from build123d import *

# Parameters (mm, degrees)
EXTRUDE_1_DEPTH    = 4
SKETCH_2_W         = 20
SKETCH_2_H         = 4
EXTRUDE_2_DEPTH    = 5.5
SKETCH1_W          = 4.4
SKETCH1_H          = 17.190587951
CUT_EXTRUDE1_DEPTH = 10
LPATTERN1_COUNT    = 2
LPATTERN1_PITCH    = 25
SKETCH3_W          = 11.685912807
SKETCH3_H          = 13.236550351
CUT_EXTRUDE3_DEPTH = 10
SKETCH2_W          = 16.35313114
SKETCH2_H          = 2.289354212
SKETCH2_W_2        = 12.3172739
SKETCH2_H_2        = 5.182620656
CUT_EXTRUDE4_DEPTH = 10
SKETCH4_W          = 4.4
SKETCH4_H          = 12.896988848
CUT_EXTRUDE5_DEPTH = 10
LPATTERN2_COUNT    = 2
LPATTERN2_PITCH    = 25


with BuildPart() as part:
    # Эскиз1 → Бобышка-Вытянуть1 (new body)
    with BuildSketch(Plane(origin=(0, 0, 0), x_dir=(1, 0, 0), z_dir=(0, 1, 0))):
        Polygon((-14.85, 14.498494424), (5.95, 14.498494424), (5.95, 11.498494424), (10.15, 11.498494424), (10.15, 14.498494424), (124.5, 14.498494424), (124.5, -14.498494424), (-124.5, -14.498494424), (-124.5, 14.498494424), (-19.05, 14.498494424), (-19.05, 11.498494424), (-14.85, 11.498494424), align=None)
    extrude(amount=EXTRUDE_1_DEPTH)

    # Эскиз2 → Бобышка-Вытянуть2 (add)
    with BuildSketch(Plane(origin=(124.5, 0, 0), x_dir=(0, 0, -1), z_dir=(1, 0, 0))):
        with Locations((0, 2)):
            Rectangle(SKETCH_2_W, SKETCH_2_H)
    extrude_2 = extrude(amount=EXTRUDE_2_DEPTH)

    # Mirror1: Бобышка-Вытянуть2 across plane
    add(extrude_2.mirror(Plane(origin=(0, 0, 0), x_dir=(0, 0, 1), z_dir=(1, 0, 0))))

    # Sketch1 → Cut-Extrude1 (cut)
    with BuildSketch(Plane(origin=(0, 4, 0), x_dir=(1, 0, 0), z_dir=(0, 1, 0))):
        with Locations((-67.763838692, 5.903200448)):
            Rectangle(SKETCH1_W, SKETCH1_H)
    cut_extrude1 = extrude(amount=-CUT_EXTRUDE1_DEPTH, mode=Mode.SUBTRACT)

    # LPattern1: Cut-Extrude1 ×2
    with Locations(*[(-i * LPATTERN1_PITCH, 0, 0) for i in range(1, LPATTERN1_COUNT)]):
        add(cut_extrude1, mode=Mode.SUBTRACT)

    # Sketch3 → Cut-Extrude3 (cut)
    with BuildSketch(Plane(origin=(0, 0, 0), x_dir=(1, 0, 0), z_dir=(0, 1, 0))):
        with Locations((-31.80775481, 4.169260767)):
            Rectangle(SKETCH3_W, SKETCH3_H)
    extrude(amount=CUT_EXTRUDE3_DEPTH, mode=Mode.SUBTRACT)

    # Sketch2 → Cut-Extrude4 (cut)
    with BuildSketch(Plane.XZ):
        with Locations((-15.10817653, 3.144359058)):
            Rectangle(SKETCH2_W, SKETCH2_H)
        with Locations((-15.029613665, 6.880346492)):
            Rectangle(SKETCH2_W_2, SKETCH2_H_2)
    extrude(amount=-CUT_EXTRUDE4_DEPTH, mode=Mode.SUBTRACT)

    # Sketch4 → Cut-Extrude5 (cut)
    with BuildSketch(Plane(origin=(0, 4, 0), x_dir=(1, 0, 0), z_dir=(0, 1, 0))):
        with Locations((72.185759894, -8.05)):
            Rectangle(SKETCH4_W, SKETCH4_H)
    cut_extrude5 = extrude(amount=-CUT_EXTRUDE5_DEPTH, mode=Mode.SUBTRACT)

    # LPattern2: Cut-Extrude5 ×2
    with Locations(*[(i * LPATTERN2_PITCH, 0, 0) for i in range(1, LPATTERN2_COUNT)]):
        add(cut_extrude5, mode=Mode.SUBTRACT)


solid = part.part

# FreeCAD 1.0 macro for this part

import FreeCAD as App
import Part
import Sketcher
from FreeCAD import Vector

doc = App.newDocument("Part")
body = doc.addObject("PartDesign::Body", "Body")

# Sketch on XZ plane
sketch1 = doc.addObject("Sketcher::SketchObject", "Sketch")
body.addObject(sketch1)
sketch1.AttachmentSupport = (doc.XZ_Plane, [""])
sketch1.MapMode = "FlatFace"
sketch1.addGeometry(Part.LineSegment(Vector(5.95, -14.498494, 0), Vector(-14.85, -14.498494, 0)), False)
sketch1.addGeometry(Part.LineSegment(Vector(-14.85, -14.498494, 0), Vector(-14.85, -11.498494, 0)), False)
sketch1.addGeometry(Part.LineSegment(Vector(-14.85, -11.498494, 0), Vector(-19.05, -11.498494, 0)), False)
sketch1.addGeometry(Part.LineSegment(Vector(-19.05, -11.498494, 0), Vector(-19.05, -14.498494, 0)), False)
sketch1.addGeometry(Part.LineSegment(Vector(-19.05, -14.498494, 0), Vector(-124.5, -14.498494, 0)), False)
sketch1.addGeometry(Part.LineSegment(Vector(-124.5, -14.498494, 0), Vector(-124.5, 14.498494, 0)), False)
sketch1.addGeometry(Part.LineSegment(Vector(-124.5, 14.498494, 0), Vector(124.5, 14.498494, 0)), False)
sketch1.addGeometry(Part.LineSegment(Vector(124.5, 14.498494, 0), Vector(124.5, -14.498494, 0)), False)
sketch1.addGeometry(Part.LineSegment(Vector(124.5, -14.498494, 0), Vector(10.15, -14.498494, 0)), False)
sketch1.addGeometry(Part.LineSegment(Vector(10.15, -14.498494, 0), Vector(10.15, -11.498494, 0)), False)
sketch1.addGeometry(Part.LineSegment(Vector(10.15, -11.498494, 0), Vector(5.95, -11.498494, 0)), False)
sketch1.addGeometry(Part.LineSegment(Vector(5.95, -11.498494, 0), Vector(5.95, -14.498494, 0)), False)
sketch1.addConstraint(Sketcher.Constraint("Coincident", 0, 2, 1, 1))
sketch1.addConstraint(Sketcher.Constraint("Coincident", 1, 2, 2, 1))
sketch1.addConstraint(Sketcher.Constraint("Coincident", 2, 2, 3, 1))
sketch1.addConstraint(Sketcher.Constraint("Coincident", 3, 2, 4, 1))
sketch1.addConstraint(Sketcher.Constraint("Coincident", 4, 2, 5, 1))
sketch1.addConstraint(Sketcher.Constraint("Coincident", 5, 2, 6, 1))
sketch1.addConstraint(Sketcher.Constraint("Coincident", 6, 2, 7, 1))
sketch1.addConstraint(Sketcher.Constraint("Coincident", 7, 2, 8, 1))
sketch1.addConstraint(Sketcher.Constraint("Coincident", 8, 2, 9, 1))
sketch1.addConstraint(Sketcher.Constraint("Coincident", 9, 2, 10, 1))
sketch1.addConstraint(Sketcher.Constraint("Coincident", 10, 2, 11, 1))
sketch1.addConstraint(Sketcher.Constraint("Coincident", 11, 2, 0, 1))
sketch1.addConstraint(Sketcher.Constraint("Horizontal", 0))
sketch1.addConstraint(Sketcher.Constraint("Vertical", 1))
sketch1.addConstraint(Sketcher.Constraint("Horizontal", 2))
sketch1.addConstraint(Sketcher.Constraint("Vertical", 3))
sketch1.addConstraint(Sketcher.Constraint("Horizontal", 4))
sketch1.addConstraint(Sketcher.Constraint("Vertical", 5))
sketch1.addConstraint(Sketcher.Constraint("Horizontal", 6))
sketch1.addConstraint(Sketcher.Constraint("Vertical", 7))
sketch1.addConstraint(Sketcher.Constraint("Horizontal", 8))
sketch1.addConstraint(Sketcher.Constraint("Vertical", 9))
sketch1.addConstraint(Sketcher.Constraint("Horizontal", 10))
sketch1.addConstraint(Sketcher.Constraint("Vertical", 11))
sketch1.addConstraint(Sketcher.Constraint("Symmetric", 4, 2, 6, 2, -1, 1))
sketch1.addConstraint(Sketcher.Constraint("Horizontal", 0, 2, 3, 2))
sketch1.addConstraint(Sketcher.Constraint("Horizontal", 4, 2, 7, 2))
sketch1.addConstraint(Sketcher.Constraint("Horizontal", 2, 2, 9, 2))
sketch1.addConstraint(Sketcher.Constraint("Equal", 2, 10))
sketch1.addConstraint(Sketcher.Constraint("DistanceX", 6, 1, 6, 2, 249.0))
sketch1.addConstraint(Sketcher.Constraint("DistanceY", 1, 1, 1, 2, 3.0))
sketch1.addConstraint(Sketcher.Constraint("DistanceX", 0, 2, 0, 1, 20.8))
sketch1.addConstraint(Sketcher.Constraint("DistanceX", 2, 2, 2, 1, 4.2))
sketch1.addConstraint(Sketcher.Constraint("DistanceX", 4, 2, 4, 1, 105.45))
sketch1.addConstraint(Sketcher.Constraint("DistanceY", 5, 1, 5, 2, 28.996989))
pad1 = doc.addObject("PartDesign::Pad", "Pad")
body.addObject(pad1)
pad1.Profile = sketch1
pad1.Length = 4
pad1.Reversed = True

# Sketch on YZ plane
sketch2 = doc.addObject("Sketcher::SketchObject", "Sketch001")
body.addObject(sketch2)
sketch2.AttachmentSupport = (doc.YZ_Plane, [""])
sketch2.MapMode = "FlatFace"
sketch2.AttachmentOffset = App.Placement(Vector(0, 0, 124.5), App.Rotation())
sketch2.addGeometry(Part.LineSegment(Vector(4, 10, 0), Vector(0, 10, 0)), False)
sketch2.addGeometry(Part.LineSegment(Vector(0, 10, 0), Vector(0, -10, 0)), False)
sketch2.addGeometry(Part.LineSegment(Vector(0, -10, 0), Vector(4, -10, 0)), False)
sketch2.addGeometry(Part.LineSegment(Vector(4, -10, 0), Vector(4, 10, 0)), False)
sketch2.addConstraint(Sketcher.Constraint("Coincident", 0, 2, 1, 1))
sketch2.addConstraint(Sketcher.Constraint("Coincident", 1, 2, 2, 1))
sketch2.addConstraint(Sketcher.Constraint("Coincident", 2, 2, 3, 1))
sketch2.addConstraint(Sketcher.Constraint("Coincident", 3, 2, 0, 1))
sketch2.addConstraint(Sketcher.Constraint("Horizontal", 0))
sketch2.addConstraint(Sketcher.Constraint("Vertical", 1))
sketch2.addConstraint(Sketcher.Constraint("Horizontal", 2))
sketch2.addConstraint(Sketcher.Constraint("Vertical", 3))
sketch2.addConstraint(Sketcher.Constraint("Symmetric", 0, 2, 1, 2, -1, 1))
sketch2.addConstraint(Sketcher.Constraint("DistanceX", 0, 2, 0, 1, 4.0))
sketch2.addConstraint(Sketcher.Constraint("DistanceY", 1, 2, 1, 1, 20.0))
pad2 = doc.addObject("PartDesign::Pad", "Pad001")
body.addObject(pad2)
pad2.Profile = sketch2
pad2.Length = 5.5
doc.recompute()

mirrored = doc.addObject("PartDesign::Mirrored", "Mirrored")
body.addObject(mirrored)
mirrored.Originals = [pad2]
mirrored.MirrorPlane = (doc.YZ_Plane, [""])
body.Tip = mirrored

# Sketch on XZ plane
sketch3 = doc.addObject("Sketcher::SketchObject", "Sketch002")
body.addObject(sketch3)
sketch3.AttachmentSupport = (doc.XZ_Plane, [""])
sketch3.MapMode = "FlatFace"
sketch3.AttachmentOffset = App.Placement(Vector(0, 0, -4), App.Rotation())
sketch3.addGeometry(Part.LineSegment(Vector(-69.963839, -14.498494, 0), Vector(-69.963839, 2.692094, 0)), False)
sketch3.addGeometry(Part.LineSegment(Vector(-69.963839, 2.692094, 0), Vector(-65.563839, 2.692094, 0)), False)
sketch3.addGeometry(Part.LineSegment(Vector(-65.563839, 2.692094, 0), Vector(-65.563839, -14.498494, 0)), False)
sketch3.addGeometry(Part.LineSegment(Vector(-65.563839, -14.498494, 0), Vector(-69.963839, -14.498494, 0)), False)
sketch3.addConstraint(Sketcher.Constraint("Coincident", 0, 2, 1, 1))
sketch3.addConstraint(Sketcher.Constraint("Coincident", 1, 2, 2, 1))
sketch3.addConstraint(Sketcher.Constraint("Coincident", 2, 2, 3, 1))
sketch3.addConstraint(Sketcher.Constraint("Coincident", 3, 2, 0, 1))
sketch3.addConstraint(Sketcher.Constraint("Vertical", 0))
sketch3.addConstraint(Sketcher.Constraint("Horizontal", 1))
sketch3.addConstraint(Sketcher.Constraint("Vertical", 2))
sketch3.addConstraint(Sketcher.Constraint("Horizontal", 3))
sketch3.addConstraint(Sketcher.Constraint("DistanceX", 1, 1, 1, 2, 4.4))
sketch3.addConstraint(Sketcher.Constraint("DistanceY", 0, 1, 0, 2, 17.190588))
sketch3.addConstraint(Sketcher.Constraint("DistanceX", 0, 2, -1, 1, 69.963839))
sketch3.addConstraint(Sketcher.Constraint("DistanceY", -1, 1, 0, 2, 2.692094))
pocket1 = doc.addObject("PartDesign::Pocket", "Pocket")
body.addObject(pocket1)
pocket1.Profile = sketch3
pocket1.Length = 10
pocket1.Reversed = True
doc.recompute()

linearpattern = doc.addObject("PartDesign::LinearPattern", "LinearPattern")
body.addObject(linearpattern)
linearpattern.Originals = [pocket1]
linearpattern.Direction = (doc.X_Axis, [""])
linearpattern.Mode = "offset"
linearpattern.Offset = 25
linearpattern.Occurrences = 2
linearpattern.Reversed = True
body.Tip = linearpattern

# Sketch on XZ plane
sketch4 = doc.addObject("Sketcher::SketchObject", "Sketch003")
body.addObject(sketch4)
sketch4.AttachmentSupport = (doc.XZ_Plane, [""])
sketch4.MapMode = "FlatFace"
sketch4.addGeometry(Part.LineSegment(Vector(-37.650711, -10.787536, 0), Vector(-37.650711, 2.449014, 0)), False)
sketch4.addGeometry(Part.LineSegment(Vector(-37.650711, 2.449014, 0), Vector(-25.964798, 2.449014, 0)), False)
sketch4.addGeometry(Part.LineSegment(Vector(-25.964798, 2.449014, 0), Vector(-25.964798, -10.787536, 0)), False)
sketch4.addGeometry(Part.LineSegment(Vector(-25.964798, -10.787536, 0), Vector(-37.650711, -10.787536, 0)), False)
sketch4.addConstraint(Sketcher.Constraint("Coincident", 0, 2, 1, 1))
sketch4.addConstraint(Sketcher.Constraint("Coincident", 1, 2, 2, 1))
sketch4.addConstraint(Sketcher.Constraint("Coincident", 2, 2, 3, 1))
sketch4.addConstraint(Sketcher.Constraint("Coincident", 3, 2, 0, 1))
sketch4.addConstraint(Sketcher.Constraint("Vertical", 0))
sketch4.addConstraint(Sketcher.Constraint("Horizontal", 1))
sketch4.addConstraint(Sketcher.Constraint("Vertical", 2))
sketch4.addConstraint(Sketcher.Constraint("Horizontal", 3))
sketch4.addConstraint(Sketcher.Constraint("DistanceY", 0, 1, 0, 2, 13.23655))
sketch4.addConstraint(Sketcher.Constraint("DistanceX", 1, 2, -1, 1, 25.964798))
sketch4.addConstraint(Sketcher.Constraint("DistanceX", 1, 1, 1, 2, 11.685913))
sketch4.addConstraint(Sketcher.Constraint("DistanceY", -1, 1, 0, 2, 2.449014))
pocket2 = doc.addObject("PartDesign::Pocket", "Pocket001")
body.addObject(pocket2)
pocket2.Profile = sketch4
pocket2.Length = 10

# Sketch on XZ plane
sketch5 = doc.addObject("Sketcher::SketchObject", "Sketch004")
body.addObject(sketch5)
sketch5.AttachmentSupport = (doc.XZ_Plane, [""])
sketch5.MapMode = "FlatFace"
sketch5.addGeometry(Part.LineSegment(Vector(-23.284742, 4.289036, 0), Vector(-23.284742, 1.999682, 0)), False)
sketch5.addGeometry(Part.LineSegment(Vector(-23.284742, 1.999682, 0), Vector(-6.931611, 1.999682, 0)), False)
sketch5.addGeometry(Part.LineSegment(Vector(-6.931611, 1.999682, 0), Vector(-6.931611, 4.289036, 0)), False)
sketch5.addGeometry(Part.LineSegment(Vector(-6.931611, 4.289036, 0), Vector(-8.870977, 4.289036, 0)), False)
sketch5.addGeometry(Part.LineSegment(Vector(-8.870977, 4.289036, 0), Vector(-8.870977, 9.471657, 0)), False)
sketch5.addGeometry(Part.LineSegment(Vector(-8.870977, 9.471657, 0), Vector(-21.188251, 9.471657, 0)), False)
sketch5.addGeometry(Part.LineSegment(Vector(-21.188251, 9.471657, 0), Vector(-21.188251, 4.289036, 0)), False)
sketch5.addGeometry(Part.LineSegment(Vector(-21.188251, 4.289036, 0), Vector(-23.284742, 4.289036, 0)), False)
sketch5.addConstraint(Sketcher.Constraint("Coincident", 0, 2, 1, 1))
sketch5.addConstraint(Sketcher.Constraint("Coincident", 1, 2, 2, 1))
sketch5.addConstraint(Sketcher.Constraint("Coincident", 2, 2, 3, 1))
sketch5.addConstraint(Sketcher.Constraint("Coincident", 3, 2, 4, 1))
sketch5.addConstraint(Sketcher.Constraint("Coincident", 4, 2, 5, 1))
sketch5.addConstraint(Sketcher.Constraint("Coincident", 5, 2, 6, 1))
sketch5.addConstraint(Sketcher.Constraint("Coincident", 6, 2, 7, 1))
sketch5.addConstraint(Sketcher.Constraint("Coincident", 7, 2, 0, 1))
sketch5.addConstraint(Sketcher.Constraint("Vertical", 0))
sketch5.addConstraint(Sketcher.Constraint("Horizontal", 1))
sketch5.addConstraint(Sketcher.Constraint("Vertical", 2))
sketch5.addConstraint(Sketcher.Constraint("Horizontal", 3))
sketch5.addConstraint(Sketcher.Constraint("Vertical", 4))
sketch5.addConstraint(Sketcher.Constraint("Horizontal", 5))
sketch5.addConstraint(Sketcher.Constraint("Vertical", 6))
sketch5.addConstraint(Sketcher.Constraint("Horizontal", 7))
sketch5.addConstraint(Sketcher.Constraint("Horizontal", 3, 2, 6, 2))
sketch5.addConstraint(Sketcher.Constraint("DistanceX", 1, 1, 1, 2, 16.353131))
sketch5.addConstraint(Sketcher.Constraint("DistanceX", 7, 2, 7, 1, 2.096491))
sketch5.addConstraint(Sketcher.Constraint("DistanceY", 4, 1, 4, 2, 5.182621))
sketch5.addConstraint(Sketcher.Constraint("DistanceX", 3, 2, 3, 1, 1.939366))
sketch5.addConstraint(Sketcher.Constraint("DistanceY", 0, 2, 0, 1, 2.289354))
sketch5.addConstraint(Sketcher.Constraint("DistanceY", -1, 1, 0, 2, 1.999682))
sketch5.addConstraint(Sketcher.Constraint("DistanceX", 1, 2, -1, 1, 6.931611))
pocket3 = doc.addObject("PartDesign::Pocket", "Pocket002")
body.addObject(pocket3)
pocket3.Profile = sketch5
pocket3.Length = 10

# Sketch on XZ plane
sketch6 = doc.addObject("Sketcher::SketchObject", "Sketch005")
body.addObject(sketch6)
sketch6.AttachmentSupport = (doc.XZ_Plane, [""])
sketch6.MapMode = "FlatFace"
sketch6.AttachmentOffset = App.Placement(Vector(0, 0, -4), App.Rotation())
sketch6.addGeometry(Part.LineSegment(Vector(69.98576, 1.601506, 0), Vector(69.98576, 14.498494, 0)), False)
sketch6.addGeometry(Part.LineSegment(Vector(69.98576, 14.498494, 0), Vector(74.38576, 14.498494, 0)), False)
sketch6.addGeometry(Part.LineSegment(Vector(74.38576, 14.498494, 0), Vector(74.38576, 1.601506, 0)), False)
sketch6.addGeometry(Part.LineSegment(Vector(74.38576, 1.601506, 0), Vector(69.98576, 1.601506, 0)), False)
sketch6.addConstraint(Sketcher.Constraint("Coincident", 0, 2, 1, 1))
sketch6.addConstraint(Sketcher.Constraint("Coincident", 1, 2, 2, 1))
sketch6.addConstraint(Sketcher.Constraint("Coincident", 2, 2, 3, 1))
sketch6.addConstraint(Sketcher.Constraint("Coincident", 3, 2, 0, 1))
sketch6.addConstraint(Sketcher.Constraint("Vertical", 0))
sketch6.addConstraint(Sketcher.Constraint("Horizontal", 1))
sketch6.addConstraint(Sketcher.Constraint("Vertical", 2))
sketch6.addConstraint(Sketcher.Constraint("Horizontal", 3))
sketch6.addConstraint(Sketcher.Constraint("DistanceX", 1, 1, 1, 2, 4.4))
sketch6.addConstraint(Sketcher.Constraint("DistanceY", 0, 1, 0, 2, 12.896989))
sketch6.addConstraint(Sketcher.Constraint("DistanceX", -1, 1, 0, 2, 69.98576))
sketch6.addConstraint(Sketcher.Constraint("DistanceY", -1, 1, 0, 2, 14.498494))
pocket4 = doc.addObject("PartDesign::Pocket", "Pocket003")
body.addObject(pocket4)
pocket4.Profile = sketch6
pocket4.Length = 10
pocket4.Reversed = True
doc.recompute()

linearpattern2 = doc.addObject("PartDesign::LinearPattern", "LinearPattern001")
body.addObject(linearpattern2)
linearpattern2.Originals = [pocket4]
linearpattern2.Direction = (doc.X_Axis, [""])
linearpattern2.Mode = "offset"
linearpattern2.Offset = 25
linearpattern2.Occurrences = 2
body.Tip = linearpattern2

doc.recompute()
